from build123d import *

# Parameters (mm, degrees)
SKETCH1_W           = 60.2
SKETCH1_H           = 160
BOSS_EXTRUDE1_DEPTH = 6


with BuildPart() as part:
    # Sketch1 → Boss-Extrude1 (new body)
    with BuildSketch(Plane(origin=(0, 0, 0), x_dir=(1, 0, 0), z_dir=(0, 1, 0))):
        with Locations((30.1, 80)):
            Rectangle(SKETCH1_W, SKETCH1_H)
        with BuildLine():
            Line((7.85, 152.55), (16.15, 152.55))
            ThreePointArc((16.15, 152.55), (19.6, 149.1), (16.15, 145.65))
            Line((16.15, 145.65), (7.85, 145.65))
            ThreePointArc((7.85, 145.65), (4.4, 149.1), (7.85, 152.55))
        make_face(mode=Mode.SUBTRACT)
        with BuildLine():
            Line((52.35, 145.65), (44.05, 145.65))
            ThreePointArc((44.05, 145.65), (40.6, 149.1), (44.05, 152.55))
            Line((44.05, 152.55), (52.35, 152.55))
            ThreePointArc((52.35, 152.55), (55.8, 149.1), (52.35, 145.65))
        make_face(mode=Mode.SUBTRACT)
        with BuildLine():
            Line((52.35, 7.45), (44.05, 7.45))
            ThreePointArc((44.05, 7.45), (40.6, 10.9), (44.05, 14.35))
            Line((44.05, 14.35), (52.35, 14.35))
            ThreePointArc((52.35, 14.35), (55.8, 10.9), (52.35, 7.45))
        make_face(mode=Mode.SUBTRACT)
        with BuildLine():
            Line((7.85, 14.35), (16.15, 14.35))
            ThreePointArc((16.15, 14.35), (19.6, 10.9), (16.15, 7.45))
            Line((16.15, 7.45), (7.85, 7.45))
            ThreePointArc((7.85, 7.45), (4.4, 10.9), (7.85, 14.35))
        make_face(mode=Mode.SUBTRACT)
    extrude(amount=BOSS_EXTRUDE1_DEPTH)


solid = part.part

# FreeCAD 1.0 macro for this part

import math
import FreeCAD as App
import Part
import Sketcher


def add_polygon(sketch, points):
    """Adds a closed chain of lines whose ends are joined by coincident constraints."""
    first, n = sketch.GeometryCount, len(points)
    for a, b in zip(points, points[1:] + points[:1]):
        sketch.addGeometry(Part.LineSegment(App.Vector(*a, 0), App.Vector(*b, 0)), False)
    for i in range(n):
        sketch.addConstraint(Sketcher.Constraint("Coincident", first + i, 2, first + (i + 1) % n, 1))

doc = App.newDocument("Part")
body = doc.addObject("PartDesign::Body", "Body")

# Sketch on XZ plane
sketch1 = body.newObject("Sketcher::SketchObject", "Sketch")
sketch1.AttachmentSupport = (doc.getObject("XZ_Plane"), [""])
sketch1.MapMode = "FlatFace"
add_polygon(sketch1, [(0, -160), (0, 0), (60.2, 0), (60.2, -160)])  # lines 0-3
sketch1.addGeometry(Part.ArcOfCircle(Part.Circle(App.Vector(7.85, -10.9, 0), App.Vector(0, 0, 1), 3.45), math.radians(90), math.radians(270)), False)  # 4
sketch1.addGeometry(Part.LineSegment(App.Vector(7.85, -14.35, 0), App.Vector(16.15, -14.35, 0)), False)  # 5
sketch1.addGeometry(Part.ArcOfCircle(Part.Circle(App.Vector(16.15, -10.9, 0), App.Vector(0, 0, 1), 3.45), math.radians(-90), math.radians(90)), False)  # 6
sketch1.addGeometry(Part.LineSegment(App.Vector(16.15, -7.45, 0), App.Vector(7.85, -7.45, 0)), False)  # 7
sketch1.addGeometry(Part.ArcOfCircle(Part.Circle(App.Vector(52.35, -10.9, 0), App.Vector(0, 0, 1), 3.45), math.radians(-90), math.radians(90)), False)  # 8
sketch1.addGeometry(Part.LineSegment(App.Vector(52.35, -7.45, 0), App.Vector(44.05, -7.45, 0)), False)  # 9
sketch1.addGeometry(Part.ArcOfCircle(Part.Circle(App.Vector(44.05, -10.9, 0), App.Vector(0, 0, 1), 3.45), math.radians(90), math.radians(270)), False)  # 10
sketch1.addGeometry(Part.LineSegment(App.Vector(44.05, -14.35, 0), App.Vector(52.35, -14.35, 0)), False)  # 11
sketch1.addGeometry(Part.ArcOfCircle(Part.Circle(App.Vector(7.85, -149.1, 0), App.Vector(0, 0, 1), 3.45), math.radians(90), math.radians(270)), False)  # 12
sketch1.addGeometry(Part.LineSegment(App.Vector(7.85, -152.55, 0), App.Vector(16.15, -152.55, 0)), False)  # 13
sketch1.addGeometry(Part.ArcOfCircle(Part.Circle(App.Vector(16.15, -149.1, 0), App.Vector(0, 0, 1), 3.45), math.radians(-90), math.radians(90)), False)  # 14
sketch1.addGeometry(Part.LineSegment(App.Vector(16.15, -145.65, 0), App.Vector(7.85, -145.65, 0)), False)  # 15
sketch1.addGeometry(Part.ArcOfCircle(Part.Circle(App.Vector(52.35, -149.1, 0), App.Vector(0, 0, 1), 3.45), math.radians(-90), math.radians(90)), False)  # 16
sketch1.addGeometry(Part.LineSegment(App.Vector(52.35, -145.65, 0), App.Vector(44.05, -145.65, 0)), False)  # 17
sketch1.addGeometry(Part.ArcOfCircle(Part.Circle(App.Vector(44.05, -149.1, 0), App.Vector(0, 0, 1), 3.45), math.radians(90), math.radians(270)), False)  # 18
sketch1.addGeometry(Part.LineSegment(App.Vector(44.05, -152.55, 0), App.Vector(52.35, -152.55, 0)), False)  # 19
sketch1.addConstraint(Sketcher.Constraint("Tangent", 4, 2, 5, 1))
sketch1.addConstraint(Sketcher.Constraint("Tangent", 5, 2, 6, 1))
sketch1.addConstraint(Sketcher.Constraint("Tangent", 6, 2, 7, 1))
sketch1.addConstraint(Sketcher.Constraint("Tangent", 7, 2, 4, 1))
sketch1.addConstraint(Sketcher.Constraint("Tangent", 8, 2, 9, 1))
sketch1.addConstraint(Sketcher.Constraint("Tangent", 9, 2, 10, 1))
sketch1.addConstraint(Sketcher.Constraint("Tangent", 10, 2, 11, 1))
sketch1.addConstraint(Sketcher.Constraint("Tangent", 11, 2, 8, 1))
sketch1.addConstraint(Sketcher.Constraint("Tangent", 12, 2, 13, 1))
sketch1.addConstraint(Sketcher.Constraint("Tangent", 13, 2, 14, 1))
sketch1.addConstraint(Sketcher.Constraint("Tangent", 14, 2, 15, 1))
sketch1.addConstraint(Sketcher.Constraint("Tangent", 15, 2, 12, 1))
sketch1.addConstraint(Sketcher.Constraint("Tangent", 16, 2, 17, 1))
sketch1.addConstraint(Sketcher.Constraint("Tangent", 17, 2, 18, 1))
sketch1.addConstraint(Sketcher.Constraint("Tangent", 18, 2, 19, 1))
sketch1.addConstraint(Sketcher.Constraint("Tangent", 19, 2, 16, 1))
sketch1.addConstraint(Sketcher.Constraint("Vertical", 0))
sketch1.addConstraint(Sketcher.Constraint("Horizontal", 1))
sketch1.addConstraint(Sketcher.Constraint("Vertical", 2))
sketch1.addConstraint(Sketcher.Constraint("Horizontal", 3))
sketch1.addConstraint(Sketcher.Constraint("Horizontal", 5))
sketch1.addConstraint(Sketcher.Constraint("Horizontal", 7))
sketch1.addConstraint(Sketcher.Constraint("Horizontal", 9))
sketch1.addConstraint(Sketcher.Constraint("Horizontal", 11))
sketch1.addConstraint(Sketcher.Constraint("Horizontal", 13))
sketch1.addConstraint(Sketcher.Constraint("Horizontal", 15))
sketch1.addConstraint(Sketcher.Constraint("Horizontal", 17))
sketch1.addConstraint(Sketcher.Constraint("Horizontal", 19))
sketch1.addConstraint(Sketcher.Constraint("Coincident", 0, 2, -1, 1))
sketch1.addConstraint(Sketcher.Constraint("Equal", 6, 8))
sketch1.addConstraint(Sketcher.Constraint("Equal", 10, 12))
sketch1.addConstraint(Sketcher.Constraint("Equal", 14, 16))
sketch1.addConstraint(Sketcher.Constraint("Horizontal", 6, 3, 8, 3))
sketch1.addConstraint(Sketcher.Constraint("Horizontal", 14, 3, 16, 3))
sketch1.addConstraint(Sketcher.Constraint("Vertical", 4, 3, 12, 3))
sketch1.addConstraint(Sketcher.Constraint("Vertical", 6, 3, 14, 3))
sketch1.addConstraint(Sketcher.Constraint("Vertical", 8, 3, 16, 3))
sketch1.addConstraint(Sketcher.Constraint("Vertical", 10, 3, 18, 3))
sketch1.addConstraint(Sketcher.Constraint("Equal", 7, 9))
sketch1.addConstraint(Sketcher.Constraint("DistanceY", 0, 1, 0, 2, 160.0))
sketch1.addConstraint(Sketcher.Constraint("Radius", 4, 3.45))
sketch1.addConstraint(Sketcher.Constraint("DistanceX", 1, 1, 1, 2, 60.2))
sketch1.addConstraint(Sketcher.Constraint("DistanceX", 5, 1, 5, 2, 8.3))
sketch1.addConstraint(Sketcher.Constraint("DistanceY", 4, 3, -1, 1, 10.9))
sketch1.addConstraint(Sketcher.Constraint("DistanceY", 12, 3, -1, 1, 149.1))
sketch1.addConstraint(Sketcher.Constraint("DistanceX", 6, 3, 8, 3, 36.2))
sketch1.addConstraint(Sketcher.Constraint("DistanceX", -1, 1, 4, 3, 7.85))
pad1 = body.newObject("PartDesign::Pad", "Pad")
pad1.Profile = sketch1
pad1.Length = 6
pad1.Reversed = True

doc.recompute()
